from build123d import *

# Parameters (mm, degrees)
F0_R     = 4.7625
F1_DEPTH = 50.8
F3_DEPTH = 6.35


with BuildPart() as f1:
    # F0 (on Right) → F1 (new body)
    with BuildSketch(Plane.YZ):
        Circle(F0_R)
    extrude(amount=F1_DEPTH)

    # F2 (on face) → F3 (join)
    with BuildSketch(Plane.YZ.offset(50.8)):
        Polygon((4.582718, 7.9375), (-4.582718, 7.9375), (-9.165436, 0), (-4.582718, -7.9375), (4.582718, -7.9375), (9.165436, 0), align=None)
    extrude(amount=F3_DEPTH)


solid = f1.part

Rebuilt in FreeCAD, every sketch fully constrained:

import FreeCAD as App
import Part
import Sketcher
Q = App.Units.Quantity

doc = App.newDocument("Part")
body = doc.addObject("PartDesign::Body", "Body")

# Sketch on YZ plane
sketch1 = body.newObject("Sketcher::SketchObject", "Sketch")
sketch1.AttachmentSupport = (doc.getObject("YZ_Plane"), [""])
sketch1.MapMode = "FlatFace"
sketch1.addGeometry(Part.Circle(App.Vector(0, 0, 0), App.Vector(0, 0, 1), 4.8), False)
sketch1.addConstraint(Sketcher.Constraint("Coincident", 0, 3, -1, 1))
sketch1.addConstraint(Sketcher.Constraint("Diameter", 0, Q("0.375 in")))
pad1 = body.newObject("PartDesign::Pad", "Pad")
pad1.Profile = sketch1
pad1.Length = Q("2 in")

# Sketch on YZ plane
sketch2 = body.newObject("Sketcher::SketchObject", "Sketch001")
sketch2.AttachmentSupport = (doc.getObject("YZ_Plane"), [""])
sketch2.MapMode = "FlatFace"
sketch2.AttachmentOffset = App.Placement(App.Vector(0, 0, 2 * 25.4), App.Rotation())
sketch2.addGeometry(Part.LineSegment(App.Vector(5, 8, 0), App.Vector(-5, 8, 0)), False)
sketch2.addGeometry(Part.LineSegment(App.Vector(-5, 8, 0), App.Vector(-9, 0, 0)), False)
sketch2.addGeometry(Part.LineSegment(App.Vector(-9, 0, 0), App.Vector(-5, -8, 0)), False)
sketch2.addGeometry(Part.LineSegment(App.Vector(-5, -8, 0), App.Vector(5, -8, 0)), False)
sketch2.addGeometry(Part.LineSegment(App.Vector(5, -8, 0), App.Vector(9, 0, 0)), False)
sketch2.addGeometry(Part.LineSegment(App.Vector(9, 0, 0), App.Vector(5, 8, 0)), False)
sketch2.addConstraint(Sketcher.Constraint("Coincident", 0, 2, 1, 1))
sketch2.addConstraint(Sketcher.Constraint("Coincident", 1, 2, 2, 1))
sketch2.addConstraint(Sketcher.Constraint("Coincident", 2, 2, 3, 1))
sketch2.addConstraint(Sketcher.Constraint("Coincident", 3, 2, 4, 1))
sketch2.addConstraint(Sketcher.Constraint("Coincident", 4, 2, 5, 1))
sketch2.addConstraint(Sketcher.Constraint("Coincident", 5, 2, 0, 1))
sketch2.addConstraint(Sketcher.Constraint("Horizontal", 0))
sketch2.addConstraint(Sketcher.Constraint("Horizontal", 3))
sketch2.addConstraint(Sketcher.Constraint("Symmetric", 0, 2, 3, 2, -1, 1))
sketch2.addConstraint(Sketcher.Constraint("Symmetric", 1, 2, 4, 2, -1, 1))
sketch2.addConstraint(Sketcher.Constraint("PointOnObject", 1, 2, -1))
sketch2.addConstraint(Sketcher.Constraint("Parallel", 2, 5))
sketch2.addConstraint(Sketcher.Constraint("Vertical", 0, 2, 2, 2))
sketch2.addConstraint(Sketcher.Constraint("Angle", 1, Q("-120.000001 deg")))
sketch2.addConstraint(Sketcher.Constraint("DistanceY", -1, 1, 0, 2, Q("0.3125 in")))
sketch2.addConstraint(Sketcher.Constraint("DistanceX", 0, 2, 0, 1, 9.165436))
pad2 = body.newObject("PartDesign::Pad", "Pad001")
pad2.Profile = sketch2
pad2.Length = Q("0.25 in")

doc.recompute()
